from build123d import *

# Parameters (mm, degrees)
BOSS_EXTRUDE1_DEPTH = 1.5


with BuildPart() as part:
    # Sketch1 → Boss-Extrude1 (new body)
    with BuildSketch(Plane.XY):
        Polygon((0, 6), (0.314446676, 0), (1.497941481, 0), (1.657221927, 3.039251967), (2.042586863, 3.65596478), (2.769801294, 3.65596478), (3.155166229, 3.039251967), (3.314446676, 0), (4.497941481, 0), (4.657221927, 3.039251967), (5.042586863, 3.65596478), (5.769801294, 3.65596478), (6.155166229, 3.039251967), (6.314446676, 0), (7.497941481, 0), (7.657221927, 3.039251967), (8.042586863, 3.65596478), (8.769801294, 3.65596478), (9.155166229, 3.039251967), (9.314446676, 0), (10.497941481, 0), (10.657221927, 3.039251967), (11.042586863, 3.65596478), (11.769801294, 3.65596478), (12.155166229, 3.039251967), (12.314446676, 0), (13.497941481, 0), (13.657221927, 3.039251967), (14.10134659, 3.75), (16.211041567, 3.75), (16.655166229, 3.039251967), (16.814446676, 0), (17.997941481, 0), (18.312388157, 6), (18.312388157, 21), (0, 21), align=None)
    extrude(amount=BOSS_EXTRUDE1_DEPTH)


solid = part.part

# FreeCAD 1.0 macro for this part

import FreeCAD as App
import Part
import Sketcher

V = App.Vector
Q = App.Units.Quantity

doc = App.newDocument("Part")
body = doc.addObject("PartDesign::Body", "Body")

# Sketch on XY plane
sketch1 = doc.addObject("Sketcher::SketchObject", "Sketch")
body.addObject(sketch1)
sketch1.AttachmentSupport = (doc.XY_Plane, [""])
sketch1.MapMode = "FlatFace"
sketch1.addGeometry([
    Part.LineSegment(V(0, 6, 0), V(0.3, 0, 0)),  # 0
    Part.LineSegment(V(0.3, 0, 0), V(1.5, 0, 0)),  # 1
    Part.LineSegment(V(1.5, 0, 0), V(1.7, 3, 0)),  # 2
    Part.LineSegment(V(1.7, 3, 0), V(2, 3.7, 0)),  # 3
    Part.LineSegment(V(2, 3.7, 0), V(2.8, 3.7, 0)),  # 4
    Part.LineSegment(V(2.8, 3.7, 0), V(3.2, 3, 0)),  # 5
    Part.LineSegment(V(3.2, 3, 0), V(3.3, 0, 0)),  # 6
    Part.LineSegment(V(3.3, 0, 0), V(4.5, 0, 0)),  # 7
    Part.LineSegment(V(4.5, 0, 0), V(4.7, 3, 0)),  # 8
    Part.LineSegment(V(4.7, 3, 0), V(5, 3.7, 0)),  # 9
    Part.LineSegment(V(5, 3.7, 0), V(5.8, 3.7, 0)),  # 10
    Part.LineSegment(V(5.8, 3.7, 0), V(6.2, 3, 0)),  # 11
    Part.LineSegment(V(6.2, 3, 0), V(6.3, 0, 0)),  # 12
    Part.LineSegment(V(6.3, 0, 0), V(7.5, 0, 0)),  # 13
    Part.LineSegment(V(7.5, 0, 0), V(7.7, 3, 0)),  # 14
    Part.LineSegment(V(7.7, 3, 0), V(8, 3.7, 0)),  # 15
    Part.LineSegment(V(8, 3.7, 0), V(8.8, 3.7, 0)),  # 16
    Part.LineSegment(V(8.8, 3.7, 0), V(9.2, 3, 0)),  # 17
    Part.LineSegment(V(9.2, 3, 0), V(9.3, 0, 0)),  # 18
    Part.LineSegment(V(9.3, 0, 0), V(10.5, 0, 0)),  # 19
    Part.LineSegment(V(10.5, 0, 0), V(10.7, 3, 0)),  # 20
    Part.LineSegment(V(10.7, 3, 0), V(11, 3.7, 0)),  # 21
    Part.LineSegment(V(11, 3.7, 0), V(11.8, 3.7, 0)),  # 22
    Part.LineSegment(V(11.8, 3.7, 0), V(12.2, 3, 0)),  # 23
    Part.LineSegment(V(12.2, 3, 0), V(12.3, 0, 0)),  # 24
    Part.LineSegment(V(12.3, 0, 0), V(13.5, 0, 0)),  # 25
    Part.LineSegment(V(13.5, 0, 0), V(13.7, 3, 0)),  # 26
    Part.LineSegment(V(13.7, 3, 0), V(14.1, 3.8, 0)),  # 27
    Part.LineSegment(V(14.1, 3.8, 0), V(16.2, 3.8, 0)),  # 28
    Part.LineSegment(V(16.2, 3.8, 0), V(16.7, 3, 0)),  # 29
    Part.LineSegment(V(16.7, 3, 0), V(16.8, 0, 0)),  # 30
    Part.LineSegment(V(16.8, 0, 0), V(18, 0, 0)),  # 31
    Part.LineSegment(V(18, 0, 0), V(18.3, 6, 0)),  # 32
    Part.LineSegment(V(18.3, 6, 0), V(18.3, 21, 0)),  # 33
    Part.LineSegment(V(18.3, 21, 0), V(0, 21, 0)),  # 34
    Part.LineSegment(V(0, 21, 0), V(0, 6, 0)),  # 35
], False)
sketch1.addConstraint([
    Sketcher.Constraint("Coincident", 0, 2, 1, 1),
    Sketcher.Constraint("Coincident", 1, 2, 2, 1),
    Sketcher.Constraint("Coincident", 2, 2, 3, 1),
    Sketcher.Constraint("Coincident", 3, 2, 4, 1),
    Sketcher.Constraint("Coincident", 4, 2, 5, 1),
    Sketcher.Constraint("Coincident", 5, 2, 6, 1),
    Sketcher.Constraint("Coincident", 6, 2, 7, 1),
    Sketcher.Constraint("Coincident", 7, 2, 8, 1),
    Sketcher.Constraint("Coincident", 8, 2, 9, 1),
    Sketcher.Constraint("Coincident", 9, 2, 10, 1),
    Sketcher.Constraint("Coincident", 10, 2, 11, 1),
    Sketcher.Constraint("Coincident", 11, 2, 12, 1),
    Sketcher.Constraint("Coincident", 12, 2, 13, 1),
    Sketcher.Constraint("Coincident", 13, 2, 14, 1),
    Sketcher.Constraint("Coincident", 14, 2, 15, 1),
    Sketcher.Constraint("Coincident", 15, 2, 16, 1),
    Sketcher.Constraint("Coincident", 16, 2, 17, 1),
    Sketcher.Constraint("Coincident", 17, 2, 18, 1),
    Sketcher.Constraint("Coincident", 18, 2, 19, 1),
    Sketcher.Constraint("Coincident", 19, 2, 20, 1),
    Sketcher.Constraint("Coincident", 20, 2, 21, 1),
    Sketcher.Constraint("Coincident", 21, 2, 22, 1),
    Sketcher.Constraint("Coincident", 22, 2, 23, 1),
    Sketcher.Constraint("Coincident", 23, 2, 24, 1),
    Sketcher.Constraint("Coincident", 24, 2, 25, 1),
    Sketcher.Constraint("Coincident", 25, 2, 26, 1),
    Sketcher.Constraint("Coincident", 26, 2, 27, 1),
    Sketcher.Constraint("Coincident", 27, 2, 28, 1),
    Sketcher.Constraint("Coincident", 28, 2, 29, 1),
    Sketcher.Constraint("Coincident", 29, 2, 30, 1),
    Sketcher.Constraint("Coincident", 30, 2, 31, 1),
    Sketcher.Constraint("Coincident", 31, 2, 32, 1),
    Sketcher.Constraint("Coincident", 32, 2, 33, 1),
    Sketcher.Constraint("Coincident", 33, 2, 34, 1),
    Sketcher.Constraint("Coincident", 34, 2, 35, 1),
    Sketcher.Constraint("Coincident", 35, 2, 0, 1),
    Sketcher.Constraint("Horizontal", 1),
    Sketcher.Constraint("Horizontal", 4),
    Sketcher.Constraint("Horizontal", 7),
    Sketcher.Constraint("Horizontal", 10),
    Sketcher.Constraint("Horizontal", 13),
    Sketcher.Constraint("Horizontal", 16),
    Sketcher.Constraint("Horizontal", 19),
    Sketcher.Constraint("Horizontal", 22),
    Sketcher.Constraint("Horizontal", 25),
    Sketcher.Constraint("Horizontal", 28),
    Sketcher.Constraint("Horizontal", 31),
    Sketcher.Constraint("Vertical", 33),
    Sketcher.Constraint("Horizontal", 34),
    Sketcher.Constraint("Vertical", 35),
    Sketcher.Constraint("PointOnObject", 0, 2, -1),
    Sketcher.Constraint("PointOnObject", 6, 2, -1),
    Sketcher.Constraint("PointOnObject", 12, 2, -1),
    Sketcher.Constraint("PointOnObject", 18, 2, -1),
    Sketcher.Constraint("PointOnObject", 24, 2, -1),
    Sketcher.Constraint("PointOnObject", 30, 2, -1),
    Sketcher.Constraint("PointOnObject", 34, 2, -2),
    Sketcher.Constraint("Parallel", 0, 6),
    Sketcher.Constraint("Parallel", 2, 8),
    Sketcher.Constraint("Parallel", 3, 9),
    Sketcher.Constraint("Parallel", 5, 11),
    Sketcher.Constraint("Parallel", 6, 12),
    Sketcher.Constraint("Parallel", 8, 14),
    Sketcher.Constraint("Parallel", 9, 15),
    Sketcher.Constraint("Parallel", 11, 17),
    Sketcher.Constraint("Parallel", 12, 18),
    Sketcher.Constraint("Parallel", 14, 20),
    Sketcher.Constraint("Parallel", 15, 21),
    Sketcher.Constraint("Parallel", 17, 23),
    Sketcher.Constraint("Parallel", 18, 24),
    Sketcher.Constraint("Parallel", 20, 26),
    Sketcher.Constraint("Parallel", 21, 27),
    Sketcher.Constraint("Parallel", 23, 29),
    Sketcher.Constraint("Parallel", 24, 30),
    Sketcher.Constraint("Parallel", 26, 32),
    Sketcher.Constraint("Horizontal", 2, 2, 5, 2),
    Sketcher.Constraint("Horizontal", 5, 2, 8, 2),
    Sketcher.Constraint("Horizontal", 4, 2, 9, 2),
    Sketcher.Constraint("Horizontal", 8, 2, 11, 2),
    Sketcher.Constraint("Horizontal", 11, 2, 14, 2),
    Sketcher.Constraint("Horizontal", 10, 2, 15, 2),
    Sketcher.Constraint("Horizontal", 14, 2, 17, 2),
    Sketcher.Constraint("Horizontal", 17, 2, 20, 2),
    Sketcher.Constraint("Horizontal", 16, 2, 21, 2),
    Sketcher.Constraint("Horizontal", 20, 2, 23, 2),
    Sketcher.Constraint("Horizontal", 23, 2, 26, 2),
    Sketcher.Constraint("Horizontal", 26, 2, 29, 2),
    Sketcher.Constraint("Horizontal", 32, 2, 35, 2),
    Sketcher.Constraint("Equal", 1, 7),
    Sketcher.Constraint("Equal", 4, 10),
    Sketcher.Constraint("Equal", 7, 13),
    Sketcher.Constraint("Equal", 10, 16),
    Sketcher.Constraint("Equal", 13, 19),
    Sketcher.Constraint("Equal", 16, 22),
    Sketcher.Constraint("Equal", 19, 25),
    Sketcher.Constraint("Equal", 25, 31),
    Sketcher.Constraint("Equal", 3, 5),
    Sketcher.Constraint("Equal", 2, 6),
    Sketcher.Constraint("DistanceY", 33, 1, 33, 2, Q("15 mm")),
    Sketcher.Constraint("Angle", 0, Q("-87 deg")),
    Sketcher.Constraint("Angle", 3, Q("58 deg")),
    Sketcher.Constraint("DistanceY", -1, 1, 32, 2, Q("6 mm")),
    Sketcher.Constraint("DistanceX", 0, 2, 6, 2, Q("3 mm")),
    Sketcher.Constraint("DistanceX", 23, 2, 29, 2, Q("4.5 mm")),
    Sketcher.Constraint("DistanceY", -1, 1, 27, 2, Q("3.75 mm")),
    Sketcher.Constraint("Distance", 27, Q("0.838099 mm")),
    Sketcher.Constraint("DistanceX", 34, 2, 34, 1, Q("18.312388 mm")),
    Sketcher.Constraint("DistanceX", -1, 1, 4, 2, Q("2.769801 mm")),
])
pad1 = doc.addObject("PartDesign::Pad", "Pad")
body.addObject(pad1)
pad1.Profile = sketch1
pad1.Length = 1.5

doc.recompute()
